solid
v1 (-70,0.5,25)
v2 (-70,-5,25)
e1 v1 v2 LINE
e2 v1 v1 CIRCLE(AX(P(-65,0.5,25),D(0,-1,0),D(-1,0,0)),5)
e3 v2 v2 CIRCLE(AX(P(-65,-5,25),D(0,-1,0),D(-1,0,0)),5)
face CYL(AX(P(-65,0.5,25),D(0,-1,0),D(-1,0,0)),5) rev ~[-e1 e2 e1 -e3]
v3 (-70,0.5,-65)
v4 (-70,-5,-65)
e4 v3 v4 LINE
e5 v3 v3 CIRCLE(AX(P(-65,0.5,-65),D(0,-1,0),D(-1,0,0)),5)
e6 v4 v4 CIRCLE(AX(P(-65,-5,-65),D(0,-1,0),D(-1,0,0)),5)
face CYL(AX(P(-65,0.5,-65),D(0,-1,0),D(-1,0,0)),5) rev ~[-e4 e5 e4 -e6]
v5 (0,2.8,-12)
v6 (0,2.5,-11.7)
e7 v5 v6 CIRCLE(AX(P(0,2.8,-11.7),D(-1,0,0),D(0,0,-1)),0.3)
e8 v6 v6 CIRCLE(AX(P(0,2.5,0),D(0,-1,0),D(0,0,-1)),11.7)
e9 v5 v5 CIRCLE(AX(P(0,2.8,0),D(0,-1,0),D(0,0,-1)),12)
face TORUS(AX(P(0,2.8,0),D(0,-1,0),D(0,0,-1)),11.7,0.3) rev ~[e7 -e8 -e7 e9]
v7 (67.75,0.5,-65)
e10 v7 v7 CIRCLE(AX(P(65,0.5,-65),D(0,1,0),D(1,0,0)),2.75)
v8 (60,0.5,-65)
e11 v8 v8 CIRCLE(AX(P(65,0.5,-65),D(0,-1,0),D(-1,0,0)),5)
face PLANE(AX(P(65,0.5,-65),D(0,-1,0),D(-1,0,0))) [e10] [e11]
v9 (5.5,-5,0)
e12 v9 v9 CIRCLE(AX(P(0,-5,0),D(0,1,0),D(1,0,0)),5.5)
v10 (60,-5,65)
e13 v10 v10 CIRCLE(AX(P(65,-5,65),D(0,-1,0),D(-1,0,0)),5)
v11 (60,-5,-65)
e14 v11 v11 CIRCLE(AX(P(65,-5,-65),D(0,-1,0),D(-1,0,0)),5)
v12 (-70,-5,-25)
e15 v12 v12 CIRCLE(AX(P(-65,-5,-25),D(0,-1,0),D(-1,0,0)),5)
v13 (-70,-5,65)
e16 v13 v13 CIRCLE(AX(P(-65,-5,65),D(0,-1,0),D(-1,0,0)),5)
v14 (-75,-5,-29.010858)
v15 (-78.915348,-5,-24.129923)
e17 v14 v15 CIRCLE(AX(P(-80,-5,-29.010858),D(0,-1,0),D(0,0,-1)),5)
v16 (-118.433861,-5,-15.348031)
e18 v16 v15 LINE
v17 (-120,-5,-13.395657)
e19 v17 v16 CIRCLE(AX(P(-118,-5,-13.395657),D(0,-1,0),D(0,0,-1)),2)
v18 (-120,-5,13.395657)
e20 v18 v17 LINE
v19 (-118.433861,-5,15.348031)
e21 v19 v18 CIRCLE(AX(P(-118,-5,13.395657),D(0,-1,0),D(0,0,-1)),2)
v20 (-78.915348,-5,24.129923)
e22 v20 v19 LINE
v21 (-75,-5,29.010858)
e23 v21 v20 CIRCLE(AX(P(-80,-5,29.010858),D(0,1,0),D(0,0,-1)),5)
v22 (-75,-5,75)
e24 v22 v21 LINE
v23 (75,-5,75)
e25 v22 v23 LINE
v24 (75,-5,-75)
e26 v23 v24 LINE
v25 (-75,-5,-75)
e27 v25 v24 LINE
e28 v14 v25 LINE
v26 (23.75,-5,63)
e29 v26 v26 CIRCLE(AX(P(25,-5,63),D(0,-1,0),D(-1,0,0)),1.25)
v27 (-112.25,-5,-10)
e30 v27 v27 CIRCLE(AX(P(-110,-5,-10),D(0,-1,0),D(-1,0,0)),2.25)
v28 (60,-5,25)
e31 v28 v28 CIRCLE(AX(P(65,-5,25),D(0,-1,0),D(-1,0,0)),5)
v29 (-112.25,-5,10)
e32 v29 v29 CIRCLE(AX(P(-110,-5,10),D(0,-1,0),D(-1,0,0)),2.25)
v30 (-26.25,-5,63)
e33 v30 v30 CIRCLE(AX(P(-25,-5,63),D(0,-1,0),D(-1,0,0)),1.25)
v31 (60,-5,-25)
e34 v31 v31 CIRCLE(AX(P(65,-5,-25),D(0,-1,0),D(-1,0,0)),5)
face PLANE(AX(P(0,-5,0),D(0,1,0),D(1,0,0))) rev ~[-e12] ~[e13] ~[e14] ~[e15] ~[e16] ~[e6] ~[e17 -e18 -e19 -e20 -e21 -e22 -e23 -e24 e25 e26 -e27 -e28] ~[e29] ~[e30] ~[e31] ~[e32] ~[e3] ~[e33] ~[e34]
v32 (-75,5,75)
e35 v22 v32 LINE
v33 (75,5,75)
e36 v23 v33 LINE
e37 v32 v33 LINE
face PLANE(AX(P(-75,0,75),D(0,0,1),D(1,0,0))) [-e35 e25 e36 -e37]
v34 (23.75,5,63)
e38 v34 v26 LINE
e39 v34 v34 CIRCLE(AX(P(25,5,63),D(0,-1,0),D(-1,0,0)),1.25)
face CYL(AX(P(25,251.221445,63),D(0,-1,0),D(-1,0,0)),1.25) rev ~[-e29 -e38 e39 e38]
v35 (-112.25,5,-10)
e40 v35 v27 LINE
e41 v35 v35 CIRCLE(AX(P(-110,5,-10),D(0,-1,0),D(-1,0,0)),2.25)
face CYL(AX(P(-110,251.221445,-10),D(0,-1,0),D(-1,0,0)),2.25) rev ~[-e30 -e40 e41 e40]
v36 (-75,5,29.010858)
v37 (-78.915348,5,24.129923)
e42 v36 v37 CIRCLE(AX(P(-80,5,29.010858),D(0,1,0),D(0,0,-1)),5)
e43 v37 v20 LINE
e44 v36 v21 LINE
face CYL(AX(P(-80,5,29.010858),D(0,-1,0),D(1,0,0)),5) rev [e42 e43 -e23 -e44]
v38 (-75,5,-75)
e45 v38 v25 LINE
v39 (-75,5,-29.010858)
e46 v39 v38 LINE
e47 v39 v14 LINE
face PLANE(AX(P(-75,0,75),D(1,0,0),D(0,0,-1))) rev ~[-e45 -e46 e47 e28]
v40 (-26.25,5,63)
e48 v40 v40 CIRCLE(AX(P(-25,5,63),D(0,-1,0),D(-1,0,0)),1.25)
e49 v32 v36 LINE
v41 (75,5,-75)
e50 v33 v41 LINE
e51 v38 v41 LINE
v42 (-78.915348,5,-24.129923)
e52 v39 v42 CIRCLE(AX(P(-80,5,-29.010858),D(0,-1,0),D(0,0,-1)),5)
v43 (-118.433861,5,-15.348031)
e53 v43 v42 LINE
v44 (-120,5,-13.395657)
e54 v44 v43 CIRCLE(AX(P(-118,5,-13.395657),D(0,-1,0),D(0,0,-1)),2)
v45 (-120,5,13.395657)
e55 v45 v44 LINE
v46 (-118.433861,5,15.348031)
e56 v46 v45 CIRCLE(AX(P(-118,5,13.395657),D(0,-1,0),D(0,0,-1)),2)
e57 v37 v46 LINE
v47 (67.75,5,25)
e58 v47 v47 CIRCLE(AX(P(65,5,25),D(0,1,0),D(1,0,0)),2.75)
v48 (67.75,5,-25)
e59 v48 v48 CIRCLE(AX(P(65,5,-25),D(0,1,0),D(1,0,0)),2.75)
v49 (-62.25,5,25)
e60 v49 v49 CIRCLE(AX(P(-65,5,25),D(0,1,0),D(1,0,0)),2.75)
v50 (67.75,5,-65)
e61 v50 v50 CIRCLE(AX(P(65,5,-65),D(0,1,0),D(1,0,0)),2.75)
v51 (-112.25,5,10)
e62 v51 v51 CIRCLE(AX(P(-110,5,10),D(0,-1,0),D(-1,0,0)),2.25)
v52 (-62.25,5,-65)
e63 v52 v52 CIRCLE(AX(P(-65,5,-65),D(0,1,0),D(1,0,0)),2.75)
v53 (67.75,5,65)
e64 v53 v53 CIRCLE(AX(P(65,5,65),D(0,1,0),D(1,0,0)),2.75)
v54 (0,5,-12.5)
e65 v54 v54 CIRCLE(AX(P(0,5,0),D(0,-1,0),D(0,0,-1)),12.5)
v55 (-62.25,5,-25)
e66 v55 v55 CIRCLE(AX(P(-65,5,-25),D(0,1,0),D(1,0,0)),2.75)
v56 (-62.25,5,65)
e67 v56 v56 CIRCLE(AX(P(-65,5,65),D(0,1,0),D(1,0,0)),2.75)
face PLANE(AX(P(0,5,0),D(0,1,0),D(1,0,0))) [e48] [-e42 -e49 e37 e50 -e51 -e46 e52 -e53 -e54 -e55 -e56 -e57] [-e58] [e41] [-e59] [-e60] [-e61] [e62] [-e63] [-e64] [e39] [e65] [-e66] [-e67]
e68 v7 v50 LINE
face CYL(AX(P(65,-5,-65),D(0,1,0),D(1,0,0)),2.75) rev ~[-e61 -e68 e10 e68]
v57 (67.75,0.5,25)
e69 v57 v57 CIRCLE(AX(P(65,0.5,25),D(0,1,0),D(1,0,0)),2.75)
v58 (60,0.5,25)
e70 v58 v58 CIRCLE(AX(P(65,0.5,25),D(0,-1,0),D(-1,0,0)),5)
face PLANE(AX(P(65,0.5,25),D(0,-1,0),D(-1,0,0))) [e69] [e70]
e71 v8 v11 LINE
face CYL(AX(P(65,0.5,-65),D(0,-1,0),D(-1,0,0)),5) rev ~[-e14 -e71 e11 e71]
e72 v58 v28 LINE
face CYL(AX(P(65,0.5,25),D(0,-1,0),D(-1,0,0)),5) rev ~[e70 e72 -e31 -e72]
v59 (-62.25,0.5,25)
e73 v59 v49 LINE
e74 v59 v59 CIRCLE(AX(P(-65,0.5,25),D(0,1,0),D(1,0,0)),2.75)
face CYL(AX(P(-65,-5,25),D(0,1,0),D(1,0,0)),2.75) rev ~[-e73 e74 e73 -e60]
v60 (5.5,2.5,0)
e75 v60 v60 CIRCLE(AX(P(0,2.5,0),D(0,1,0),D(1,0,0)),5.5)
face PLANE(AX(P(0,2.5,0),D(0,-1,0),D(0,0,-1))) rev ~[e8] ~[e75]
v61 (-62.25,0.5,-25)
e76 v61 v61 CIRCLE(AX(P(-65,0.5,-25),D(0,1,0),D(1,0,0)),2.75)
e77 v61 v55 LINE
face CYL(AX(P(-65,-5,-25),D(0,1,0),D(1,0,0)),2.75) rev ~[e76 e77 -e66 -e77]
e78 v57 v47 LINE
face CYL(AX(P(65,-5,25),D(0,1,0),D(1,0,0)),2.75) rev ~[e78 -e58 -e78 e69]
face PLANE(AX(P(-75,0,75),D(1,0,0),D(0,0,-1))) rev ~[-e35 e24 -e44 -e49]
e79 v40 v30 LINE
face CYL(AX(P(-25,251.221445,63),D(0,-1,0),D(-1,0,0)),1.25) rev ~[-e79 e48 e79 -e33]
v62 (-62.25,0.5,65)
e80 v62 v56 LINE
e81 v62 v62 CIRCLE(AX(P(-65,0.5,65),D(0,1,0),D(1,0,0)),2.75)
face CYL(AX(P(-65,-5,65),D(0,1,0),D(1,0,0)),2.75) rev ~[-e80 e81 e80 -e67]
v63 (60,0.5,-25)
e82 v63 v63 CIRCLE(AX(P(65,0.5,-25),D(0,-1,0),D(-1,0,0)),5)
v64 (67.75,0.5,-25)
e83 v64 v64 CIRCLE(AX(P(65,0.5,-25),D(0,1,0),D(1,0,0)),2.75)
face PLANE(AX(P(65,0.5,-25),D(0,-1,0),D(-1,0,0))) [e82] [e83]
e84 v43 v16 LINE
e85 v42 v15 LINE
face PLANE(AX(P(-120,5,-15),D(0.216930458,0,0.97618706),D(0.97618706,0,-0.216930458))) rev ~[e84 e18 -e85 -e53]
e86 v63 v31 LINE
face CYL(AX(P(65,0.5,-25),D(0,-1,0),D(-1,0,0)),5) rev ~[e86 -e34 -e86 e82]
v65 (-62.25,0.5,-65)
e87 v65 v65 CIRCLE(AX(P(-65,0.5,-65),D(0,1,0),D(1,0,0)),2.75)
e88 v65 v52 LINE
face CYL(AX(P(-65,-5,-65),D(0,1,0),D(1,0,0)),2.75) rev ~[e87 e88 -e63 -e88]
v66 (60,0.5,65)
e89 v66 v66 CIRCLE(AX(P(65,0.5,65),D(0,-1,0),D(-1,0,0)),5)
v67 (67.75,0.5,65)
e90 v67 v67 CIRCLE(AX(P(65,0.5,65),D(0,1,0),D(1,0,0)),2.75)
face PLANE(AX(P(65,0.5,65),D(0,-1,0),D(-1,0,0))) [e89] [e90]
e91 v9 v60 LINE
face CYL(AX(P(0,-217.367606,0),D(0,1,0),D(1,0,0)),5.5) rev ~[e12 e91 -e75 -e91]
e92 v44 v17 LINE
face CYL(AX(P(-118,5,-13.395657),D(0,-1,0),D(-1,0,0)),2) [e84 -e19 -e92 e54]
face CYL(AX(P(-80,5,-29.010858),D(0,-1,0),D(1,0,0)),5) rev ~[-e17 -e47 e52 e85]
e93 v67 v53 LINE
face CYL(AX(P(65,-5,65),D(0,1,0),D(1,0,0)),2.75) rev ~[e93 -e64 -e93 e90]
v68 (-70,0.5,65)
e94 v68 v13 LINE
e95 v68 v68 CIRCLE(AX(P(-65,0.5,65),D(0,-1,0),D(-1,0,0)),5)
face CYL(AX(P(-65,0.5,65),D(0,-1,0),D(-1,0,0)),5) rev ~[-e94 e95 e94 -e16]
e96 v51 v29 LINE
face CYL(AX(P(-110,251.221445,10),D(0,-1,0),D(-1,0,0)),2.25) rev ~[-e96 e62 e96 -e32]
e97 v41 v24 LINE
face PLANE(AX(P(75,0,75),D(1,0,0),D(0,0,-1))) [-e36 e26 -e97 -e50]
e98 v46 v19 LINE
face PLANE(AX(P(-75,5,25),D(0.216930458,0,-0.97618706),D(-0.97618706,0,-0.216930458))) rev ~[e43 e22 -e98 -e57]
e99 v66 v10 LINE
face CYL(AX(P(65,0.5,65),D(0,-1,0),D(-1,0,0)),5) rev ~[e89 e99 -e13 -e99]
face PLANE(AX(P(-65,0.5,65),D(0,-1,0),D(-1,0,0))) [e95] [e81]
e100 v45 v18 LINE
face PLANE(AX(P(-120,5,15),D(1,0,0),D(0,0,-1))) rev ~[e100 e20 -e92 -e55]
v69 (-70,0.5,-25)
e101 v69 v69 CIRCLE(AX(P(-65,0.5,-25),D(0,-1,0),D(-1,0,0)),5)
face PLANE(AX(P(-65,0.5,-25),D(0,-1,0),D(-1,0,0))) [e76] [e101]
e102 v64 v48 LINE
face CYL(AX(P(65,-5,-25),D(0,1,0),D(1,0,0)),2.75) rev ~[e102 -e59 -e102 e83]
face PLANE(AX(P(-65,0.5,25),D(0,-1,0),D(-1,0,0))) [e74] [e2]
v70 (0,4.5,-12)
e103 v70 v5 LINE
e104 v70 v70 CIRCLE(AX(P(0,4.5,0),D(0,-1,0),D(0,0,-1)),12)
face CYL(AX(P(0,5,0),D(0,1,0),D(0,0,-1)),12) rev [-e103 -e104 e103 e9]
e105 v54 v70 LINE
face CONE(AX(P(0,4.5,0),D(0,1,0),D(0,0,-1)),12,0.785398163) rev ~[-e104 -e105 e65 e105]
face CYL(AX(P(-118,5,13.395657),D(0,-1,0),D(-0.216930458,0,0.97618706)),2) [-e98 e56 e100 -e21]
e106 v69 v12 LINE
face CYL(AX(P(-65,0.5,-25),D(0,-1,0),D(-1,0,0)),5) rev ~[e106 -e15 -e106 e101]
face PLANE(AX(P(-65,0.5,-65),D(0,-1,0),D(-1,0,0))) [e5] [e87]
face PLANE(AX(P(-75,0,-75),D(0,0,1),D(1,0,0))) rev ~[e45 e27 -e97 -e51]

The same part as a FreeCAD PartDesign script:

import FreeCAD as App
import Part
import Sketcher
from FreeCAD import Vector


def edges_at(feature, points):
    """Names of the edges that pass closest to the given points."""
    edges = feature.Shape.Edges
    near = lambda p: min(range(len(edges)), key=lambda i: edges[i].distToShape(Part.Vertex(*p))[0])
    return sorted({f"Edge{near(p) + 1}" for p in points})

doc = App.newDocument("Part")
body = doc.addObject("PartDesign::Body", "Body")

# Sketch on XZ plane
sketch1 = body.newObject("Sketcher::SketchObject", "Sketch")
sketch1.AttachmentSupport = (doc.getObject("XZ_Plane"), [""])
sketch1.MapMode = "FlatFace"
sketch1.addGeometry([
    Part.LineSegment(Vector(-75, -75, 0), Vector(-75, 75, 0)),
    Part.LineSegment(Vector(-75, 75, 0), Vector(75, 75, 0)),
    Part.LineSegment(Vector(75, 75, 0), Vector(75, -75, 0)),
    Part.LineSegment(Vector(75, -75, 0), Vector(-75, -75, 0)),
], False)
sketch1.addConstraint([
    Sketcher.Constraint("Coincident", 0, 2, 1, 1),
    Sketcher.Constraint("Coincident", 1, 2, 2, 1),
    Sketcher.Constraint("Coincident", 2, 2, 3, 1),
    Sketcher.Constraint("Coincident", 3, 2, 0, 1),
    Sketcher.Constraint("Vertical", 0),
    Sketcher.Constraint("Horizontal", 1),
    Sketcher.Constraint("Vertical", 2),
    Sketcher.Constraint("Horizontal", 3),
    Sketcher.Constraint("Symmetric", 0, 2, 2, 2, -1, 1),
    Sketcher.Constraint("Equal", 3, 0),
    Sketcher.Constraint("DistanceX", 1, 1, 1, 2, 150.0),
])
pad1 = body.newObject("PartDesign::Pad", "Pad")
pad1.Profile = sketch1
pad1.Length = 10
pad1.Midplane = True

# Sketch on XZ plane
sketch2 = body.newObject("Sketcher::SketchObject", "Sketch001")
sketch2.AttachmentSupport = (doc.getObject("XZ_Plane"), [""])
sketch2.MapMode = "FlatFace"
sketch2.AttachmentOffset = App.Placement(Vector(0, 0, 5), App.Rotation())
sketch2.addGeometry([
    Part.Circle(Vector(65, 65, 0), Vector(0, 0, 1), 2.75),  # 0
    Part.Circle(Vector(65, 25, 0), Vector(0, 0, 1), 2.75),  # 1
    Part.Circle(Vector(65, -25, 0), Vector(0, 0, 1), 2.75),  # 2
    Part.Circle(Vector(65, -65, 0), Vector(0, 0, 1), 2.75),  # 3
    Part.Circle(Vector(-65, 65, 0), Vector(0, 0, 1), 2.75),  # 4
    Part.Circle(Vector(-65, 25, 0), Vector(0, 0, 1), 2.75),  # 5
    Part.Circle(Vector(-65, -25, 0), Vector(0, 0, 1), 2.75),  # 6
    Part.Circle(Vector(-65, -65, 0), Vector(0, 0, 1), 2.75),  # 7
], False)
sketch2.addConstraint([
    Sketcher.Constraint("Equal", 0, 1),
    Sketcher.Constraint("Equal", 1, 2),
    Sketcher.Constraint("Equal", 2, 3),
    Sketcher.Constraint("Equal", 3, 4),
    Sketcher.Constraint("Equal", 4, 5),
    Sketcher.Constraint("Equal", 5, 6),
    Sketcher.Constraint("Equal", 6, 7),
    Sketcher.Constraint("Symmetric", 3, 3, 4, 3, -1, 1),
    Sketcher.Constraint("Symmetric", 2, 3, 5, 3, -1, 1),
    Sketcher.Constraint("Symmetric", 1, 3, 6, 3, -1, 1),
    Sketcher.Constraint("Symmetric", 0, 3, 7, 3, -1, 1),
    Sketcher.Constraint("Symmetric", 0, 3, 4, 3, -2),
    Sketcher.Constraint("Symmetric", 1, 3, 5, 3, -2),
    Sketcher.Constraint("Vertical", 0, 3, 1, 3),
    Sketcher.Constraint("Diameter", 0, 5.5),
    Sketcher.Constraint("DistanceX", -1, 1, 0, 3, 65.0),
    Sketcher.Constraint("DistanceY", -1, 1, 0, 3, 65.0),
    Sketcher.Constraint("DistanceY", -1, 1, 1, 3, 25.0),
])
doc.recompute()
hole = body.newObject("PartDesign::Hole", "Hole")
hole.Profile = sketch2
hole.ThreadType = "None"
hole.Diameter = 5.5
hole.DepthType = "ThroughAll"
hole.HoleCutType = "Counterbore"
hole.HoleCutDiameter = 10
hole.HoleCutDepth = 5.5

# Sketch on XZ plane
sketch3 = body.newObject("Sketcher::SketchObject", "Sketch002")
sketch3.AttachmentSupport = (doc.getObject("XZ_Plane"), [""])
sketch3.MapMode = "FlatFace"
sketch3.AttachmentOffset = App.Placement(Vector(0, 0, 5), App.Rotation())
sketch3.addGeometry(Part.Circle(Vector(0, 0, 0), Vector(0, 0, 1), 5.5), False)
sketch3.addConstraint([
    Sketcher.Constraint("Coincident", 0, 3, -1, 1),
    Sketcher.Constraint("Diameter", 0, 11.0),
])
doc.recompute()
hole2 = body.newObject("PartDesign::Hole", "Hole001")
hole2.Profile = sketch3
hole2.ThreadType = "None"
hole2.Diameter = 11
hole2.DepthType = "ThroughAll"

# Sketch on XZ plane
sketch4 = body.newObject("Sketcher::SketchObject", "Sketch003")
sketch4.AttachmentSupport = (doc.getObject("XZ_Plane"), [""])
sketch4.MapMode = "FlatFace"
sketch4.AttachmentOffset = App.Placement(Vector(0, 0, -5), App.Rotation())
sketch4.addGeometry(Part.Circle(Vector(0, 0, 0), Vector(0, 0, 1), 12), False)
sketch4.addConstraint([
    Sketcher.Constraint("Coincident", 0, 3, -1, 1),
    Sketcher.Constraint("Diameter", 0, 24.0),
])
pocket1 = body.newObject("PartDesign::Pocket", "Pocket")
pocket1.Profile = sketch4
pocket1.Length = 2.5
pocket1.Reversed = True
doc.recompute()

fillet = body.newObject("PartDesign::Fillet", "Fillet")
fillet.Base = (pocket1, edges_at(pocket1, [(0, 2.5, 12)]))
fillet.Radius = 0.3

# Sketch on XZ plane
sketch5 = body.newObject("Sketcher::SketchObject", "Sketch004")
sketch5.AttachmentSupport = (doc.getObject("XZ_Plane"), [""])
sketch5.MapMode = "FlatFace"
sketch5.AttachmentOffset = App.Placement(Vector(0, 0, -5), App.Rotation())
sketch5.addGeometry([
    Part.LineSegment(Vector(-75, 25, 0), Vector(-75, -25, 0)),
    Part.LineSegment(Vector(-75, -25, 0), Vector(-120, -15, 0)),
    Part.LineSegment(Vector(-120, -15, 0), Vector(-120, 15, 0)),
    Part.LineSegment(Vector(-120, 15, 0), Vector(-75, 25, 0)),
], False)
sketch5.addConstraint([
    Sketcher.Constraint("Coincident", 0, 2, 1, 1),
    Sketcher.Constraint("Coincident", 1, 2, 2, 1),
    Sketcher.Constraint("Coincident", 2, 2, 3, 1),
    Sketcher.Constraint("Coincident", 3, 2, 0, 1),
    Sketcher.Constraint("Vertical", 0),
    Sketcher.Constraint("Vertical", 2),
    Sketcher.Constraint("Equal", 1, 3),
    Sketcher.Constraint("DistanceY", 0, 2, 0, 1, 50.0),
    Sketcher.Constraint("DistanceY", 2, 1, 2, 2, 30.0),
    Sketcher.Constraint("DistanceX", 0, 2, -1, 1, 75.0),
    Sketcher.Constraint("DistanceY", 0, 2, -1, 1, 25.0),
    Sketcher.Constraint("DistanceX", 1, 2, -1, 1, 120.0),
])
pad2 = body.newObject("PartDesign::Pad", "Pad001")
pad2.Profile = sketch5
pad2.Length = 10
doc.recompute()

fillet2 = body.newObject("PartDesign::Fillet", "Fillet001")
fillet2.Base = (pad2, edges_at(pad2, [(-75, 0, -25), (-75, 0, 25)]))
fillet2.Radius = 5

# Sketch on XZ plane
sketch6 = body.newObject("Sketcher::SketchObject", "Sketch005")
sketch6.AttachmentSupport = (doc.getObject("XZ_Plane"), [""])
sketch6.MapMode = "FlatFace"
sketch6.AttachmentOffset = App.Placement(Vector(0, 0, -5), App.Rotation())
sketch6.addGeometry([
    Part.Circle(Vector(-110, -10, 0), Vector(0, 0, 1), 2.25),
    Part.Circle(Vector(-110, 10, 0), Vector(0, 0, 1), 2.25),
], False)
sketch6.addConstraint([
    Sketcher.Constraint("Equal", 0, 1),
    Sketcher.Constraint("Symmetric", 0, 3, 1, 3, -1),
    Sketcher.Constraint("Diameter", 0, 4.5),
    Sketcher.Constraint("DistanceX", 0, 3, -1, 1, 110.0),
    Sketcher.Constraint("DistanceY", 0, 3, -1, 1, 10.0),
])
doc.recompute()
hole3 = body.newObject("PartDesign::Hole", "Hole002")
hole3.Profile = sketch6
hole3.ThreadType = "None"
hole3.Diameter = 4.5
hole3.DepthType = "ThroughAll"
hole3.Reversed = True
doc.recompute()

fillet3 = body.newObject("PartDesign::Fillet", "Fillet002")
fillet3.Base = (hole3, edges_at(hole3, [(-120, 0, -15), (-120, 0, 15)]))
fillet3.Radius = 2

# Sketch on XZ plane
sketch7 = body.newObject("Sketcher::SketchObject", "Sketch006")
sketch7.AttachmentSupport = (doc.getObject("XZ_Plane"), [""])
sketch7.MapMode = "FlatFace"
sketch7.AttachmentOffset = App.Placement(Vector(0, 0, -5), App.Rotation())
sketch7.addGeometry([
    Part.Circle(Vector(-25, 63, 0), Vector(0, 0, 1), 1.25),
    Part.Circle(Vector(25, 63, 0), Vector(0, 0, 1), 1.25),
], False)
sketch7.addConstraint([
    Sketcher.Constraint("Equal", 0, 1),
    Sketcher.Constraint("Symmetric", 0, 3, 1, 3, -2),
    Sketcher.Constraint("Diameter", 0, 2.5),
    Sketcher.Constraint("DistanceX", 0, 3, -1, 1, 25.0),
    Sketcher.Constraint("DistanceY", -1, 1, 0, 3, 63.0),
])
doc.recompute()
hole4 = body.newObject("PartDesign::Hole", "Hole003")
hole4.Profile = sketch7
hole4.ThreadType = "None"
hole4.Diameter = 2.5
hole4.DepthType = "ThroughAll"
hole4.Reversed = True
doc.recompute()

chamfer = body.newObject("PartDesign::Chamfer", "Chamfer")
chamfer.Base = (hole4, edges_at(hole4, [(0, 5, 12)]))
chamfer.Size = 0.5

doc.recompute()
